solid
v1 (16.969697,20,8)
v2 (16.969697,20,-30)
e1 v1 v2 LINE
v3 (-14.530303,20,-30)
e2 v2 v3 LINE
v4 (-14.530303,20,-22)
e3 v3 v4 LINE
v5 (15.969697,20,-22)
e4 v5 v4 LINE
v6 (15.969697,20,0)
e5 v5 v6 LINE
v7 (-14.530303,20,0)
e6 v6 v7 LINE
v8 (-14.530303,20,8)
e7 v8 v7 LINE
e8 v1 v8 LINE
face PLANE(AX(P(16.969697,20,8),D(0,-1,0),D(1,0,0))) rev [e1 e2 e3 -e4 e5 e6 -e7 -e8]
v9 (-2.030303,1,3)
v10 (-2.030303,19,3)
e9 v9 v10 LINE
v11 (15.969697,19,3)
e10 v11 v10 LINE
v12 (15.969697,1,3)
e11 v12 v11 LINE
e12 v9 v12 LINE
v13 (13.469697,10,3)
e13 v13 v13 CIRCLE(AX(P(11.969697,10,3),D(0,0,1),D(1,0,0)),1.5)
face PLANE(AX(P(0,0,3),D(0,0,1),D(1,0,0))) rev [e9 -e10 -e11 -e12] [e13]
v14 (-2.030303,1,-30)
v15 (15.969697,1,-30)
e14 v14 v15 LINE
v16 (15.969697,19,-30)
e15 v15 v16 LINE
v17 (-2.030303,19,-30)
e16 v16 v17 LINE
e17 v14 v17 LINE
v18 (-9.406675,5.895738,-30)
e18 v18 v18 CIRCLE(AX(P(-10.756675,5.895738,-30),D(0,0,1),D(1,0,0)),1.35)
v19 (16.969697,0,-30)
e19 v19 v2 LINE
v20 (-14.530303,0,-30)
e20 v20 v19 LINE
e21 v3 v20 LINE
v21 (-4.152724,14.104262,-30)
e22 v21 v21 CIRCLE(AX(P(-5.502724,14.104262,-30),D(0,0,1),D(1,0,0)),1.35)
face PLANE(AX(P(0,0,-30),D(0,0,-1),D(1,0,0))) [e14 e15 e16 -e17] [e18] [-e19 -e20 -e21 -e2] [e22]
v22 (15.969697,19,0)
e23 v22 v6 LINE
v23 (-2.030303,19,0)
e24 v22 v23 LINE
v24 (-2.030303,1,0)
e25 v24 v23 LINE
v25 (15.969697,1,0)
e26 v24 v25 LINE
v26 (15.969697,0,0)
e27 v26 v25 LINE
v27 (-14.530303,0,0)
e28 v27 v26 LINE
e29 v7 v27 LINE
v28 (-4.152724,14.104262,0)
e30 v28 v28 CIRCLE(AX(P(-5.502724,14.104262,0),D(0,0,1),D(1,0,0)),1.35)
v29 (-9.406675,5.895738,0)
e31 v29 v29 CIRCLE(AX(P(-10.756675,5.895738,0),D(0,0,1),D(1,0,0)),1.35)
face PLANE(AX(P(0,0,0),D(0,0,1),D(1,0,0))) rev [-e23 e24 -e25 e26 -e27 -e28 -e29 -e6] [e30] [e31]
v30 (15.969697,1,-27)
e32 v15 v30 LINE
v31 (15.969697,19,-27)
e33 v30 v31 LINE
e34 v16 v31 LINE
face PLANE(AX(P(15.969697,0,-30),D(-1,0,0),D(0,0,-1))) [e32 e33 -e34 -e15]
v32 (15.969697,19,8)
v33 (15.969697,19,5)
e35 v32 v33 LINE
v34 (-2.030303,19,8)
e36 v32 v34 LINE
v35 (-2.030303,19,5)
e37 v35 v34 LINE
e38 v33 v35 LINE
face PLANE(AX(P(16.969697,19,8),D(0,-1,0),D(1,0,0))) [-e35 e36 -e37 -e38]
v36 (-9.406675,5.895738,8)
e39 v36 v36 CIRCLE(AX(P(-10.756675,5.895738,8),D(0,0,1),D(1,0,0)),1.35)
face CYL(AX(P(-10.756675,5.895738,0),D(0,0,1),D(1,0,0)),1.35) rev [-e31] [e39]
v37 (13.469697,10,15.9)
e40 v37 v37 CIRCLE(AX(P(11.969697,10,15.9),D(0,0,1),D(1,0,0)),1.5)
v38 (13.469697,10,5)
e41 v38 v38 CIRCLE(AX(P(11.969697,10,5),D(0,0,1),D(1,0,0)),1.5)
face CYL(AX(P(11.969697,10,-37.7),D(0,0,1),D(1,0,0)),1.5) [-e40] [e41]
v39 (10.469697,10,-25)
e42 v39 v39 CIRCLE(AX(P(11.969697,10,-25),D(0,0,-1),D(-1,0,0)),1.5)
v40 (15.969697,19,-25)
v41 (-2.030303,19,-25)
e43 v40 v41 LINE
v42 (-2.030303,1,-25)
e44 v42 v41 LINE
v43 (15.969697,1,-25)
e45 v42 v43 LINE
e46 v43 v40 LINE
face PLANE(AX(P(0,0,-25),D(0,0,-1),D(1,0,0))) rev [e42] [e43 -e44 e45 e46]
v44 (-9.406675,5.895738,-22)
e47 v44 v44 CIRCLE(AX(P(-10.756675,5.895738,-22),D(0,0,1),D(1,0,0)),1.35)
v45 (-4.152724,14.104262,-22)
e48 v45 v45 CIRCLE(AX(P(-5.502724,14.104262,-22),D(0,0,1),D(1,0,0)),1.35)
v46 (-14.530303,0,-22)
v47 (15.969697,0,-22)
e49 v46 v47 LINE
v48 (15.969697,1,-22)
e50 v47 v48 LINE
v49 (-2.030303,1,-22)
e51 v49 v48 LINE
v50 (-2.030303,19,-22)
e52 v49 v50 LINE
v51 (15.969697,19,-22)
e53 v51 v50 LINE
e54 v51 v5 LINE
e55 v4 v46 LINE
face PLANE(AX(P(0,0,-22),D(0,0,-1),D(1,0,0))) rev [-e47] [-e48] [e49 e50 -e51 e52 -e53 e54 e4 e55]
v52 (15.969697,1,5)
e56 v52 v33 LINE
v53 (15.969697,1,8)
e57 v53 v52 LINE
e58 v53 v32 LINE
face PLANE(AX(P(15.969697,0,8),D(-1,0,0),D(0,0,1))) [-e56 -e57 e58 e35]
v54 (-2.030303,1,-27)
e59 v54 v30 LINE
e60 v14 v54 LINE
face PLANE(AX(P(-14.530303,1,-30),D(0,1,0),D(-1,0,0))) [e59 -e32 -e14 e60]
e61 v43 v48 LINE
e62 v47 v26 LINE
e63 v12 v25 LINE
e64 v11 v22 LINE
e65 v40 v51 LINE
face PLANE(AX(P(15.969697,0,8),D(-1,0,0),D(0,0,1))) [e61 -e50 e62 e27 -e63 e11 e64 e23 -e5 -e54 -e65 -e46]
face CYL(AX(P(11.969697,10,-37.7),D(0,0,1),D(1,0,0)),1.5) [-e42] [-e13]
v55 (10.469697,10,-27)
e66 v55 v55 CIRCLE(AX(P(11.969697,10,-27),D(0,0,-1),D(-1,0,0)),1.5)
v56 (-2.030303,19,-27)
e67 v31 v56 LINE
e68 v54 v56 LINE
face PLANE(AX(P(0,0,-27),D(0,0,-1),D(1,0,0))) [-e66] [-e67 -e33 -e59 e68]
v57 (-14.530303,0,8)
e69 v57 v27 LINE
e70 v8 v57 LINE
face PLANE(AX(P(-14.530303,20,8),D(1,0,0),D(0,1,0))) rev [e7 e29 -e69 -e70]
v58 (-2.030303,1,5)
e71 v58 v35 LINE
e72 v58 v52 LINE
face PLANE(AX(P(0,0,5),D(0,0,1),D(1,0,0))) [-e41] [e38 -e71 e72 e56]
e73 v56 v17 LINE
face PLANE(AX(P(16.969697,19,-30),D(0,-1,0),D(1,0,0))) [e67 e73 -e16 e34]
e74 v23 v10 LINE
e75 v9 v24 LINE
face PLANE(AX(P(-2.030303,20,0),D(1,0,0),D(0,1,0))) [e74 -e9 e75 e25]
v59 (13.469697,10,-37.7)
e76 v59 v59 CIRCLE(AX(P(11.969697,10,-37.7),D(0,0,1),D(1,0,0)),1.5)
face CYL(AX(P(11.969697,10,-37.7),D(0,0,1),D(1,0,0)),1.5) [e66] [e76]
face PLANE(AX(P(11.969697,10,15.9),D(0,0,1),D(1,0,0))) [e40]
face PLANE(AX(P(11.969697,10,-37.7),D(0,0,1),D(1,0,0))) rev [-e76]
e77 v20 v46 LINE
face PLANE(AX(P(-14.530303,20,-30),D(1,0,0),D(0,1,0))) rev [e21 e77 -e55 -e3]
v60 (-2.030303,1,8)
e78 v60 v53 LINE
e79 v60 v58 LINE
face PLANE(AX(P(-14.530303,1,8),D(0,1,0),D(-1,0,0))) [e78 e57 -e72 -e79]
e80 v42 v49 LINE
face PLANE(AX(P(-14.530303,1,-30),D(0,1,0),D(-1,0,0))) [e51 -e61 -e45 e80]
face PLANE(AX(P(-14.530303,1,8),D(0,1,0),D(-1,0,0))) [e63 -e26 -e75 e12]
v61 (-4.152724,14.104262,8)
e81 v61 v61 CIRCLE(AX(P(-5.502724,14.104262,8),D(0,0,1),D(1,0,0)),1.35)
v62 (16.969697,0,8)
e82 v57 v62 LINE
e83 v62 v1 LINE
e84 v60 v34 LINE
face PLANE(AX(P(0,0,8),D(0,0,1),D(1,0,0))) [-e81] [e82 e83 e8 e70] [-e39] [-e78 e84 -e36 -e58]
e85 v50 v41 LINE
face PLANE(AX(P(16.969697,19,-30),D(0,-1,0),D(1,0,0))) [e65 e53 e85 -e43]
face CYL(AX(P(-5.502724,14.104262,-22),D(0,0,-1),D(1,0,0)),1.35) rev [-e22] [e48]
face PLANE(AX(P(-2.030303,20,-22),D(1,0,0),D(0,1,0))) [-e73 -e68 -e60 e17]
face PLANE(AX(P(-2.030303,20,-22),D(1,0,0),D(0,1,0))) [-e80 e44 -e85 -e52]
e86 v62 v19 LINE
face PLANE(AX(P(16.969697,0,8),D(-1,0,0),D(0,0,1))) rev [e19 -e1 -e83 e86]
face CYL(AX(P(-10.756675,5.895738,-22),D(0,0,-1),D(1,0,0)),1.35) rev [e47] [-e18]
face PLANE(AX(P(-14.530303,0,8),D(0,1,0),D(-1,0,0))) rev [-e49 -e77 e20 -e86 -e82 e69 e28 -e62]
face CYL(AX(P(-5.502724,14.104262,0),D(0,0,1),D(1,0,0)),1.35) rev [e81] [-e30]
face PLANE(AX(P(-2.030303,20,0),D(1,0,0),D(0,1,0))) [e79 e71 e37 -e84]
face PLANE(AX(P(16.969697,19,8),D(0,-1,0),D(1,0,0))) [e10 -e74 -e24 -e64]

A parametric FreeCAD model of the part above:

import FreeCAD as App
import Part
import Sketcher


def add_polygon(sketch, points):
    """Adds a closed chain of lines whose ends are joined by coincident constraints."""
    first, n = sketch.GeometryCount, len(points)
    for a, b in zip(points, points[1:] + points[:1]):
        sketch.addGeometry(Part.LineSegment(App.Vector(*a, 0), App.Vector(*b, 0)), False)
    for i in range(n):
        sketch.addConstraint(Sketcher.Constraint("Coincident", first + i, 2, first + (i + 1) % n, 1))

doc = App.newDocument("Part")
body = doc.addObject("PartDesign::Body", "Body")

sketch1 = body.newObject("Sketcher::SketchObject", "Sketch")
sketch1.AttachmentSupport = (doc.getObject("XY_Plane"), [""])
sketch1.MapMode = "FlatFace"
add_polygon(sketch1, [(-15, 20), (-15, 0), (17, 0), (17, 20)])
add_polygon(sketch1, [(16, 1), (-14, 1), (-14, 19), (16, 19)])
sketch1.addConstraint([
    Sketcher.Constraint("Vertical", 0),
    Sketcher.Constraint("Horizontal", 1),
    Sketcher.Constraint("Vertical", 2),
    Sketcher.Constraint("Horizontal", 3),
    Sketcher.Constraint("Horizontal", 4),
    Sketcher.Constraint("Vertical", 5),
    Sketcher.Constraint("Horizontal", 6),
    Sketcher.Constraint("Vertical", 7),
    Sketcher.Constraint("PointOnObject", 0, 2, -1),
    Sketcher.Constraint("DistanceY", 0, 2, 0, 1, 20.0),
    Sketcher.Constraint("DistanceY", 5, 1, 5, 2, 18.0),
    Sketcher.Constraint("DistanceX", 1, 1, 1, 2, 31.5),
    Sketcher.Constraint("DistanceX", 4, 2, 4, 1, 29.5),
    Sketcher.Constraint("DistanceY", -1, 1, 4, 2, 1.0),
    Sketcher.Constraint("DistanceX", 0, 2, 4, 2, 1.0),
    Sketcher.Constraint("DistanceX", 0, 2, -1, 1, 14.530303),
])
pad1 = body.newObject("PartDesign::Pad", "Pad")
pad1.Profile = sketch1
pad1.Length = 8

sketch2 = body.newObject("Sketcher::SketchObject", "Sketch001")
sketch2.AttachmentSupport = (doc.getObject("XY_Plane"), [""])
sketch2.MapMode = "FlatFace"
sketch2.AttachmentOffset = App.Placement(App.Vector(0, 0, 4), App.Rotation())
add_polygon(sketch2, [(-15, 20), (-15, 0), (17, 0), (17, 20)])
sketch2.addConstraint([
    Sketcher.Constraint("Vertical", 0),
    Sketcher.Constraint("Horizontal", 1),
    Sketcher.Constraint("Vertical", 2),
    Sketcher.Constraint("Horizontal", 3),
    Sketcher.Constraint("PointOnObject", 0, 2, -1),
    Sketcher.Constraint("DistanceY", 0, 2, 0, 1, 20.0),
    Sketcher.Constraint("DistanceX", 1, 1, 1, 2, 31.5),
    Sketcher.Constraint("DistanceX", 0, 2, -1, 1, 14.530303),
])
pad2 = body.newObject("PartDesign::Pad", "Pad001")
pad2.Profile = sketch2
pad2.Length = 2
pad2.Midplane = True

sketch3 = body.newObject("Sketcher::SketchObject", "Sketch002")
sketch3.AttachmentSupport = (doc.getObject("XY_Plane"), [""])
sketch3.MapMode = "FlatFace"
sketch3.AttachmentOffset = App.Placement(App.Vector(0, 0, 8), App.Rotation())
add_polygon(sketch3, [(-15, 20), (-15, 0), (-2, 0), (-2, 20)])
sketch3.addConstraint([
    Sketcher.Constraint("Vertical", 0),
    Sketcher.Constraint("Horizontal", 1),
    Sketcher.Constraint("Vertical", 2),
    Sketcher.Constraint("Horizontal", 3),
    Sketcher.Constraint("PointOnObject", 0, 2, -1),
    Sketcher.Constraint("DistanceY", 0, 2, 0, 1, 20.0),
    Sketcher.Constraint("DistanceX", 1, 1, 1, 2, 12.5),
    Sketcher.Constraint("DistanceX", 0, 2, -1, 1, 14.530303),
])
pad3 = body.newObject("PartDesign::Pad", "Pad002")
pad3.Profile = sketch3
pad3.Length = 8
pad3.Reversed = True

sketch4 = body.newObject("Sketcher::SketchObject", "Sketch003")
sketch4.AttachmentSupport = (doc.getObject("XY_Plane"), [""])
sketch4.MapMode = "FlatFace"
sketch4.AttachmentOffset = App.Placement(App.Vector(0, 0, 8), App.Rotation())
sketch4.addGeometry([
    Part.Circle(App.Vector(-10.8, 5.9, 0), App.Vector(0, 0, 1), 1.4),
    Part.Circle(App.Vector(-5.5, 14.1, 0), App.Vector(0, 0, 1), 1.4),
], False)
sketch4.addConstraint([
    Sketcher.Constraint("Equal", 0, 1),
    Sketcher.Constraint("Diameter", 0, 2.7),
    Sketcher.Constraint("DistanceY", -1, 1, 0, 3, 5.895738),
    Sketcher.Constraint("DistanceY", -1, 1, 1, 3, 14.104262),
    Sketcher.Constraint("DistanceX", 0, 3, 1, 3, 5.25395),
    Sketcher.Constraint("DistanceX", 0, 3, -1, 1, 10.756675),
])
pocket1 = body.newObject("PartDesign::Pocket", "Pocket")
pocket1.Profile = sketch4
pocket1.Length = 8

sketch5 = body.newObject("Sketcher::SketchObject", "Sketch004")
sketch5.AttachmentSupport = (doc.getObject("XY_Plane"), [""])
sketch5.MapMode = "FlatFace"
add_polygon(sketch5, [(17, 20), (17, 0), (16, 0), (16, 20)])
sketch5.addConstraint([
    Sketcher.Constraint("Vertical", 0),
    Sketcher.Constraint("Horizontal", 1),
    Sketcher.Constraint("Vertical", 2),
    Sketcher.Constraint("Horizontal", 3),
    Sketcher.Constraint("PointOnObject", 0, 2, -1),
    Sketcher.Constraint("DistanceX", 1, 2, 1, 1, 1.0),
    Sketcher.Constraint("DistanceY", 0, 2, 0, 1, 20.0),
    Sketcher.Constraint("DistanceX", -1, 1, 0, 2, 16.969697),
])
pad4 = body.newObject("PartDesign::Pad", "Pad003")
pad4.Profile = sketch5
pad4.Length = 22
pad4.Reversed = True
body2 = doc.addObject("PartDesign::Body", "Body001")
doc.recompute()

body2.BaseFeature = body
doc.recompute()

mirroring = doc.addObject("Part::Mirroring", "Mirroring")
mirroring.Source = body
mirroring.Base = App.Vector(0, 0, -11)
mirroring.Normal = App.Vector(0, 0, 1)
body3 = doc.addObject("PartDesign::Body", "Body002")
body3.BaseFeature = mirroring
boolean = body2.newObject("PartDesign::Boolean", "Boolean")
boolean.Type = "Fuse"
boolean.addObjects([body3])
doc.recompute()

sketch6 = body2.newObject("Sketcher::SketchObject", "Sketch005")
sketch6.AttachmentSupport = (doc.getObject("XY_Plane001"), [""])
sketch6.MapMode = "FlatFace"
sketch6.AttachmentOffset = App.Placement(App.Vector(0, 0, 15.9), App.Rotation())
sketch6.addGeometry(Part.Circle(App.Vector(12, 10, 0), App.Vector(0, 0, 1), 1.5), False)
sketch6.addConstraint([
    Sketcher.Constraint("Diameter", 0, 3.0),
    Sketcher.Constraint("DistanceY", -1, 1, 0, 3, 10.0),
    Sketcher.Constraint("DistanceX", -1, 1, 0, 3, 11.969697),
])
pad5 = body2.newObject("PartDesign::Pad", "Pad004")
pad5.Profile = sketch6
pad5.Length = 53.6
pad5.Reversed = True
mirroring.Visibility = False

doc.recompute()
